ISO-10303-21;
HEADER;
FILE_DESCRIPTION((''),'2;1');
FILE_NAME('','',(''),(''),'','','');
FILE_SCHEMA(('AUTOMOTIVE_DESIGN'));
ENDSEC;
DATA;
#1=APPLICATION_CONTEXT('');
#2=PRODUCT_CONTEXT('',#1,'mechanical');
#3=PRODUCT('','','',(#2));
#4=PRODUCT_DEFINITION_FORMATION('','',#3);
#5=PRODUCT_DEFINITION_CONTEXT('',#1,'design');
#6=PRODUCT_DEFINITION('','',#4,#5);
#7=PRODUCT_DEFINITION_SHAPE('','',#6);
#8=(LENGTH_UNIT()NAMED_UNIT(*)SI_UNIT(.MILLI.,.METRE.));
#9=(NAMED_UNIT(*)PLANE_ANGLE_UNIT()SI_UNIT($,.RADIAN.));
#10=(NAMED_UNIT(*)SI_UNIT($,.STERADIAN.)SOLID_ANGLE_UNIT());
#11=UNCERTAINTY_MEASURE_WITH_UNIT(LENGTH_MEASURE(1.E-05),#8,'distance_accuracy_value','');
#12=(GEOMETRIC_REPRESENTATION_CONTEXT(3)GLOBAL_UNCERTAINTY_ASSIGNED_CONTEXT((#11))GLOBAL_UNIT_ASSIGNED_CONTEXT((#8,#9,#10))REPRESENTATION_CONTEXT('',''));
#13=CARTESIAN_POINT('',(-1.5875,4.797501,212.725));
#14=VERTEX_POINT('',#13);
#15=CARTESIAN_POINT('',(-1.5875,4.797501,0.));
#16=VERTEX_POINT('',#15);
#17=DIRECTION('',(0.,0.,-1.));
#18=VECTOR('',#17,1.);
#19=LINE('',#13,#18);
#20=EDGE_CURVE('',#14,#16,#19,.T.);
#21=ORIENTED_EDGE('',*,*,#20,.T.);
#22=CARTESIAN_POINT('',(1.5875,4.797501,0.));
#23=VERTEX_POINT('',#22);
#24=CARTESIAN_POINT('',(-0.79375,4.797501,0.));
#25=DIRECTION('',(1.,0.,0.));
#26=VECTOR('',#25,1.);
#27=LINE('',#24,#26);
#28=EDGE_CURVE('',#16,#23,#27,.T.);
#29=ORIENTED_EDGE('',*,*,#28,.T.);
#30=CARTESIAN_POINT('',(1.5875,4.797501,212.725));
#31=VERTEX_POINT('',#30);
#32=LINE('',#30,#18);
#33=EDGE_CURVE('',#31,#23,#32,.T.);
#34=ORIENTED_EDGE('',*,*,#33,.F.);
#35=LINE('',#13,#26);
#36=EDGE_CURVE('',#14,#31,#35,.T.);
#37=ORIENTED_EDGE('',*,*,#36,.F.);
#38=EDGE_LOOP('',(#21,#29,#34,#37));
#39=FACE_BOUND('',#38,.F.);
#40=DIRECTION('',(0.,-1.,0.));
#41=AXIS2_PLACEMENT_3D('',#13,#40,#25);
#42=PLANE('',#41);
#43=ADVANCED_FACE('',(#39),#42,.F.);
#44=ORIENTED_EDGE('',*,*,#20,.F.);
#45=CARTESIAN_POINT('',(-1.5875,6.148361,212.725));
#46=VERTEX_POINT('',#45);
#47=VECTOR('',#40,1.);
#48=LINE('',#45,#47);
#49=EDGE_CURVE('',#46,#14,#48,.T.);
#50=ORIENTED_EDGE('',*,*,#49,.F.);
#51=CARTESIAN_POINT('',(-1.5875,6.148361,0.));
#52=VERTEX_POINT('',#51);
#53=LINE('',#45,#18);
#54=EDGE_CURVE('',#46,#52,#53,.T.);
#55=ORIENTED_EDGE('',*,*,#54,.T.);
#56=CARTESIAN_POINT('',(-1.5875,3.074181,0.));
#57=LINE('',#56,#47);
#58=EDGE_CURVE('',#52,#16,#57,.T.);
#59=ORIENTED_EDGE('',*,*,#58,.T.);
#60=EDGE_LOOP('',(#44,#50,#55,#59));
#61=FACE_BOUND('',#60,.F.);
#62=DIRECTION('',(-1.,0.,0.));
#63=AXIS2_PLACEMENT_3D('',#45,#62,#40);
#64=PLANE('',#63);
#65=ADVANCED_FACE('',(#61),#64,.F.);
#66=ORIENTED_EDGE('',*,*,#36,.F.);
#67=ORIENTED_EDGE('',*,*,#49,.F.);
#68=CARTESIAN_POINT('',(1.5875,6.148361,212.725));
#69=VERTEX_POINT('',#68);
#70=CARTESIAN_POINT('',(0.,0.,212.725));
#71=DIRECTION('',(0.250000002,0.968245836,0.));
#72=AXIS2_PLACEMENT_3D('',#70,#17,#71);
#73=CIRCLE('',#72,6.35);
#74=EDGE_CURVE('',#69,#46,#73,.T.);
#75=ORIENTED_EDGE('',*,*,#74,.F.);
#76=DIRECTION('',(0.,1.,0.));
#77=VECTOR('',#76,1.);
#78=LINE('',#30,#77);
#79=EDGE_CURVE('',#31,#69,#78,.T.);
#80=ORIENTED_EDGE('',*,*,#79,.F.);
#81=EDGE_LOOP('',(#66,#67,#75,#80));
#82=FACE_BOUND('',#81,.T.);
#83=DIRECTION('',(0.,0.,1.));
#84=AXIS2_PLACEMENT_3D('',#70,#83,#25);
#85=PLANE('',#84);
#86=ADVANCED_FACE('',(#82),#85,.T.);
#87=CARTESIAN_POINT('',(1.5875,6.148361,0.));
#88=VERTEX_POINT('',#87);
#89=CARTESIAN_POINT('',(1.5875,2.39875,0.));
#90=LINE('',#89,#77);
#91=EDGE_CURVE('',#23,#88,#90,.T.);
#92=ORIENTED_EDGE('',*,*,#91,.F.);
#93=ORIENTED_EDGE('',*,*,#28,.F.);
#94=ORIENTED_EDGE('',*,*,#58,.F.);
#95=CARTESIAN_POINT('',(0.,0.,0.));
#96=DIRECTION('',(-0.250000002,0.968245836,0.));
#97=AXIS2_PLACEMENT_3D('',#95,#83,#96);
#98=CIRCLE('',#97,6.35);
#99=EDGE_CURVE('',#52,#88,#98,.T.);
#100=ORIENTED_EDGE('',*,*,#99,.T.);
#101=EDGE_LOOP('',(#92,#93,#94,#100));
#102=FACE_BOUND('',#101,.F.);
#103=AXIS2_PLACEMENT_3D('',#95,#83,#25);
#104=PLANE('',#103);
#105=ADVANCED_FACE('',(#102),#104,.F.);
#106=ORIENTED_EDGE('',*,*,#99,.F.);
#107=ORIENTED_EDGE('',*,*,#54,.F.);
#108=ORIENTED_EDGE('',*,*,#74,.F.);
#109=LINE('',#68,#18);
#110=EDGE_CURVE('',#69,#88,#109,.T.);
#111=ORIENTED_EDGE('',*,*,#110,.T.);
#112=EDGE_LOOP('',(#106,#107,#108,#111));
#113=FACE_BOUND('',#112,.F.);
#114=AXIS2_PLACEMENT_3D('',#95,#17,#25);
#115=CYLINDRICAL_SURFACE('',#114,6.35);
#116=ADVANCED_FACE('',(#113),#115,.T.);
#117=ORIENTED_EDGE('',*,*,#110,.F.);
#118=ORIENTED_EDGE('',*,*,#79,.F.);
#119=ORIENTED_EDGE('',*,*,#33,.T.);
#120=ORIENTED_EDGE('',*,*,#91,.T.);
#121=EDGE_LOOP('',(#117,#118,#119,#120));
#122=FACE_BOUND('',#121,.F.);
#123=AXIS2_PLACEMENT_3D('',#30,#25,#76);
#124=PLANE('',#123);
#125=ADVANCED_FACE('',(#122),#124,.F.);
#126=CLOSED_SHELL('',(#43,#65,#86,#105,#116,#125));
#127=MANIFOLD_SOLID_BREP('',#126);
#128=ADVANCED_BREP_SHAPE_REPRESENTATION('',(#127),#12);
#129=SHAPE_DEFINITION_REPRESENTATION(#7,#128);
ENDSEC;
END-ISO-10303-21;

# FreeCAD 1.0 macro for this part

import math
import FreeCAD as App
import Part
import Sketcher
from FreeCAD import Vector
Q = App.Units.Quantity

doc = App.newDocument("Part")
body = doc.addObject("PartDesign::Body", "Body")

sketch1 = doc.addObject("Sketcher::SketchObject", "Sketch")
body.addObject(sketch1)
sketch1.AttachmentSupport = (doc.XY_Plane, [""])
sketch1.MapMode = "FlatFace"
sketch1.addGeometry(Part.Circle(Vector(0, 0, 0), Vector(0, 0, 1), 6.35), False)
sketch1.addConstraint(Sketcher.Constraint("Coincident", 0, 3, -1, 1))
sketch1.addConstraint(Sketcher.Constraint("Diameter", 0, Q("0.5 in")))
pad1 = doc.addObject("PartDesign::Pad", "Pad")
body.addObject(pad1)
pad1.Profile = sketch1
pad1.Length = Q("8.375 in")

sketch2 = doc.addObject("Sketcher::SketchObject", "Sketch001")
body.addObject(sketch2)
sketch2.AttachmentSupport = (doc.XY_Plane, [""])
sketch2.MapMode = "FlatFace"
sketch2.AttachmentOffset = App.Placement(Vector(0, 0, 8.375 * 25.4), App.Rotation())
sketch2.addGeometry(Part.LineSegment(Vector(-1.5875, 4.797501, 0), Vector(1.5875, 4.797501, 0)), False)
sketch2.addGeometry(Part.LineSegment(Vector(1.5875, 4.797501, 0), Vector(1.5875, 6.148361, 0)), False)
sketch2.addGeometry(Part.ArcOfCircle(Part.Circle(Vector(0, 0.000002, 0), Vector(0, 0, 1), 6.349998), math.radians(75.522483), math.radians(104.477517)), False)
sketch2.addGeometry(Part.LineSegment(Vector(-1.5875, 6.148361, 0), Vector(-1.5875, 4.797501, 0)), False)
sketch2.addConstraint(Sketcher.Constraint("Coincident", 0, 2, 1, 1))
sketch2.addConstraint(Sketcher.Constraint("Coincident", 1, 2, 2, 1))
sketch2.addConstraint(Sketcher.Constraint("Coincident", 2, 2, 3, 1))
sketch2.addConstraint(Sketcher.Constraint("Coincident", 3, 2, 0, 1))
sketch2.addConstraint(Sketcher.Constraint("Horizontal", 0))
sketch2.addConstraint(Sketcher.Constraint("Vertical", 1))
sketch2.addConstraint(Sketcher.Constraint("Vertical", 3))
sketch2.addConstraint(Sketcher.Constraint("Coincident", 2, 3, -1, 1))
sketch2.addConstraint(Sketcher.Constraint("Horizontal", 1, 2, 2, 2))
sketch2.addConstraint(Sketcher.Constraint("Radius", 2, Q("0.2499999 in")))
sketch2.addConstraint(Sketcher.Constraint("DistanceX", 0, 1, 0, 2, Q("0.125 in")))
sketch2.addConstraint(Sketcher.Constraint("DistanceY", 1, 1, 1, 2, Q("1.35086 mm")))
pocket1 = doc.addObject("PartDesign::Pocket", "Pocket")
body.addObject(pocket1)
pocket1.Profile = sketch2
pocket1.Type = "ThroughAll"

doc.recompute()
